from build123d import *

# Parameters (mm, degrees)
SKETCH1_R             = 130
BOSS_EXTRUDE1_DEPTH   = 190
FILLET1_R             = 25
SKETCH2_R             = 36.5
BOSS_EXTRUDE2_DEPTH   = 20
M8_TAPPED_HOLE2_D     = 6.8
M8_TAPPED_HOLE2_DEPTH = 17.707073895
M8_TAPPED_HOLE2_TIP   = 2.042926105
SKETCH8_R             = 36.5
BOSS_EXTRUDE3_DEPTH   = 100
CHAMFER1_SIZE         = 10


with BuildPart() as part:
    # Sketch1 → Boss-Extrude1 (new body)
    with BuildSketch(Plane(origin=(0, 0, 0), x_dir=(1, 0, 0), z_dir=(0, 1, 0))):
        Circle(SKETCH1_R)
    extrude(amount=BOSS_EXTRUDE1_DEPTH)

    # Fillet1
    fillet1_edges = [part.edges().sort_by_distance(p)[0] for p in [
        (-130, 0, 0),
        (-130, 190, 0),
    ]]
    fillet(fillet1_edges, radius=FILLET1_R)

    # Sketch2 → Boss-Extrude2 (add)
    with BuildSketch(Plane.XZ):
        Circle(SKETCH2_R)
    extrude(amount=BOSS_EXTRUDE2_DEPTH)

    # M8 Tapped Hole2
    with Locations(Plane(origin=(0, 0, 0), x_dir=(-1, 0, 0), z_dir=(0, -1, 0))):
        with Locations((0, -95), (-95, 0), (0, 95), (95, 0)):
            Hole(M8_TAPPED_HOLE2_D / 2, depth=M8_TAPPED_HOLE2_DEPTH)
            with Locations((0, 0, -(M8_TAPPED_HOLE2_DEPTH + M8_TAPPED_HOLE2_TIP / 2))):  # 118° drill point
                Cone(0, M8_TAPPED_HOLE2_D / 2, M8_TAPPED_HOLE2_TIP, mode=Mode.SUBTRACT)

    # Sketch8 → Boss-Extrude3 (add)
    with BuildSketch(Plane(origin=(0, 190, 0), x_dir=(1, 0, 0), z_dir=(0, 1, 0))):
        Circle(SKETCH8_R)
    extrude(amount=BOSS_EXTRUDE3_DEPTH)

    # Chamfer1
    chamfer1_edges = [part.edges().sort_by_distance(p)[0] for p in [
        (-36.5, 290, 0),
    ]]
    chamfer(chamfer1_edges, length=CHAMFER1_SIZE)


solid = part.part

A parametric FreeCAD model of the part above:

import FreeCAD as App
import Part
import Sketcher
from FreeCAD import Vector


def edges_at(feature, points):
    """Names of the edges that pass closest to the given points."""
    edges = feature.Shape.Edges
    near = lambda p: min(range(len(edges)), key=lambda i: edges[i].distToShape(Part.Vertex(*p))[0])
    return sorted({f"Edge{near(p) + 1}" for p in points})

doc = App.newDocument("Part")
body = doc.addObject("PartDesign::Body", "Body")

# Sketch on XZ plane
sketch1 = body.newObject("Sketcher::SketchObject", "Sketch")
sketch1.AttachmentSupport = (doc.getObject("XZ_Plane"), [""])
sketch1.MapMode = "FlatFace"
sketch1.addGeometry(Part.Circle(Vector(0, 0, 0), Vector(0, 0, 1), 130), False)
sketch1.addConstraint(Sketcher.Constraint("Coincident", 0, 3, -1, 1))
sketch1.addConstraint(Sketcher.Constraint("Diameter", 0, 260.0))
pad1 = body.newObject("PartDesign::Pad", "Pad")
pad1.Profile = sketch1
pad1.Length = 190
pad1.Reversed = True
doc.recompute()

fillet = body.newObject("PartDesign::Fillet", "Fillet")
fillet.Base = (pad1, edges_at(pad1, [(-130, 0, 0), (-130, 190, 0)]))
fillet.Radius = 25

# Sketch on XZ plane
sketch2 = body.newObject("Sketcher::SketchObject", "Sketch001")
sketch2.AttachmentSupport = (doc.getObject("XZ_Plane"), [""])
sketch2.MapMode = "FlatFace"
sketch2.addGeometry(Part.Circle(Vector(0, 0, 0), Vector(0, 0, 1), 36.5), False)
sketch2.addConstraint(Sketcher.Constraint("Coincident", 0, 3, -1, 1))
sketch2.addConstraint(Sketcher.Constraint("Diameter", 0, 73.0))
pad2 = body.newObject("PartDesign::Pad", "Pad001")
pad2.Profile = sketch2
pad2.Length = 20

# Sketch on XZ plane
sketch3 = body.newObject("Sketcher::SketchObject", "Sketch002")
sketch3.AttachmentSupport = (doc.getObject("XZ_Plane"), [""])
sketch3.MapMode = "FlatFace"
sketch3.addGeometry(Part.Circle(Vector(0, 95, 0), Vector(0, 0, 1), 3.4), False)
sketch3.addGeometry(Part.Circle(Vector(95, 0, 0), Vector(0, 0, 1), 3.4), False)
sketch3.addGeometry(Part.Circle(Vector(0, -95, 0), Vector(0, 0, 1), 3.4), False)
sketch3.addGeometry(Part.Circle(Vector(-95, 0, 0), Vector(0, 0, 1), 3.4), False)
sketch3.addConstraint(Sketcher.Constraint("Equal", 0, 1))
sketch3.addConstraint(Sketcher.Constraint("Equal", 1, 2))
sketch3.addConstraint(Sketcher.Constraint("Equal", 2, 3))
sketch3.addConstraint(Sketcher.Constraint("Symmetric", 0, 3, 2, 3, -1, 1))
sketch3.addConstraint(Sketcher.Constraint("Symmetric", 1, 3, 3, 3, -1, 1))
sketch3.addConstraint(Sketcher.Constraint("PointOnObject", 0, 3, -2))
sketch3.addConstraint(Sketcher.Constraint("PointOnObject", 1, 3, -1))
sketch3.addConstraint(Sketcher.Constraint("Diameter", 0, 6.8))
sketch3.addConstraint(Sketcher.Constraint("DistanceY", -1, 1, 0, 3, 95.0))
sketch3.addConstraint(Sketcher.Constraint("DistanceX", -1, 1, 1, 3, 95.0))
doc.recompute()
hole = body.newObject("PartDesign::Hole", "Hole")
hole.Profile = sketch3
hole.ThreadType = "None"
hole.Diameter = 6.8
hole.DepthType = "Dimension"
hole.Depth = 17.707074
hole.DrillPoint = "Angled"
hole.DrillPointAngle = 118

# Sketch on XZ plane
sketch4 = body.newObject("Sketcher::SketchObject", "Sketch003")
sketch4.AttachmentSupport = (doc.getObject("XZ_Plane"), [""])
sketch4.MapMode = "FlatFace"
sketch4.AttachmentOffset = App.Placement(Vector(0, 0, -190), App.Rotation())
sketch4.addGeometry(Part.Circle(Vector(0, 0, 0), Vector(0, 0, 1), 36.5), False)
sketch4.addConstraint(Sketcher.Constraint("Coincident", 0, 3, -1, 1))
sketch4.addConstraint(Sketcher.Constraint("Diameter", 0, 73.0))
pad3 = body.newObject("PartDesign::Pad", "Pad002")
pad3.Profile = sketch4
pad3.Length = 100
pad3.Reversed = True
doc.recompute()

chamfer = body.newObject("PartDesign::Chamfer", "Chamfer")
chamfer.Base = (pad3, edges_at(pad3, [(-36.5, 290, 0)]))
chamfer.Size = 10

doc.recompute()
